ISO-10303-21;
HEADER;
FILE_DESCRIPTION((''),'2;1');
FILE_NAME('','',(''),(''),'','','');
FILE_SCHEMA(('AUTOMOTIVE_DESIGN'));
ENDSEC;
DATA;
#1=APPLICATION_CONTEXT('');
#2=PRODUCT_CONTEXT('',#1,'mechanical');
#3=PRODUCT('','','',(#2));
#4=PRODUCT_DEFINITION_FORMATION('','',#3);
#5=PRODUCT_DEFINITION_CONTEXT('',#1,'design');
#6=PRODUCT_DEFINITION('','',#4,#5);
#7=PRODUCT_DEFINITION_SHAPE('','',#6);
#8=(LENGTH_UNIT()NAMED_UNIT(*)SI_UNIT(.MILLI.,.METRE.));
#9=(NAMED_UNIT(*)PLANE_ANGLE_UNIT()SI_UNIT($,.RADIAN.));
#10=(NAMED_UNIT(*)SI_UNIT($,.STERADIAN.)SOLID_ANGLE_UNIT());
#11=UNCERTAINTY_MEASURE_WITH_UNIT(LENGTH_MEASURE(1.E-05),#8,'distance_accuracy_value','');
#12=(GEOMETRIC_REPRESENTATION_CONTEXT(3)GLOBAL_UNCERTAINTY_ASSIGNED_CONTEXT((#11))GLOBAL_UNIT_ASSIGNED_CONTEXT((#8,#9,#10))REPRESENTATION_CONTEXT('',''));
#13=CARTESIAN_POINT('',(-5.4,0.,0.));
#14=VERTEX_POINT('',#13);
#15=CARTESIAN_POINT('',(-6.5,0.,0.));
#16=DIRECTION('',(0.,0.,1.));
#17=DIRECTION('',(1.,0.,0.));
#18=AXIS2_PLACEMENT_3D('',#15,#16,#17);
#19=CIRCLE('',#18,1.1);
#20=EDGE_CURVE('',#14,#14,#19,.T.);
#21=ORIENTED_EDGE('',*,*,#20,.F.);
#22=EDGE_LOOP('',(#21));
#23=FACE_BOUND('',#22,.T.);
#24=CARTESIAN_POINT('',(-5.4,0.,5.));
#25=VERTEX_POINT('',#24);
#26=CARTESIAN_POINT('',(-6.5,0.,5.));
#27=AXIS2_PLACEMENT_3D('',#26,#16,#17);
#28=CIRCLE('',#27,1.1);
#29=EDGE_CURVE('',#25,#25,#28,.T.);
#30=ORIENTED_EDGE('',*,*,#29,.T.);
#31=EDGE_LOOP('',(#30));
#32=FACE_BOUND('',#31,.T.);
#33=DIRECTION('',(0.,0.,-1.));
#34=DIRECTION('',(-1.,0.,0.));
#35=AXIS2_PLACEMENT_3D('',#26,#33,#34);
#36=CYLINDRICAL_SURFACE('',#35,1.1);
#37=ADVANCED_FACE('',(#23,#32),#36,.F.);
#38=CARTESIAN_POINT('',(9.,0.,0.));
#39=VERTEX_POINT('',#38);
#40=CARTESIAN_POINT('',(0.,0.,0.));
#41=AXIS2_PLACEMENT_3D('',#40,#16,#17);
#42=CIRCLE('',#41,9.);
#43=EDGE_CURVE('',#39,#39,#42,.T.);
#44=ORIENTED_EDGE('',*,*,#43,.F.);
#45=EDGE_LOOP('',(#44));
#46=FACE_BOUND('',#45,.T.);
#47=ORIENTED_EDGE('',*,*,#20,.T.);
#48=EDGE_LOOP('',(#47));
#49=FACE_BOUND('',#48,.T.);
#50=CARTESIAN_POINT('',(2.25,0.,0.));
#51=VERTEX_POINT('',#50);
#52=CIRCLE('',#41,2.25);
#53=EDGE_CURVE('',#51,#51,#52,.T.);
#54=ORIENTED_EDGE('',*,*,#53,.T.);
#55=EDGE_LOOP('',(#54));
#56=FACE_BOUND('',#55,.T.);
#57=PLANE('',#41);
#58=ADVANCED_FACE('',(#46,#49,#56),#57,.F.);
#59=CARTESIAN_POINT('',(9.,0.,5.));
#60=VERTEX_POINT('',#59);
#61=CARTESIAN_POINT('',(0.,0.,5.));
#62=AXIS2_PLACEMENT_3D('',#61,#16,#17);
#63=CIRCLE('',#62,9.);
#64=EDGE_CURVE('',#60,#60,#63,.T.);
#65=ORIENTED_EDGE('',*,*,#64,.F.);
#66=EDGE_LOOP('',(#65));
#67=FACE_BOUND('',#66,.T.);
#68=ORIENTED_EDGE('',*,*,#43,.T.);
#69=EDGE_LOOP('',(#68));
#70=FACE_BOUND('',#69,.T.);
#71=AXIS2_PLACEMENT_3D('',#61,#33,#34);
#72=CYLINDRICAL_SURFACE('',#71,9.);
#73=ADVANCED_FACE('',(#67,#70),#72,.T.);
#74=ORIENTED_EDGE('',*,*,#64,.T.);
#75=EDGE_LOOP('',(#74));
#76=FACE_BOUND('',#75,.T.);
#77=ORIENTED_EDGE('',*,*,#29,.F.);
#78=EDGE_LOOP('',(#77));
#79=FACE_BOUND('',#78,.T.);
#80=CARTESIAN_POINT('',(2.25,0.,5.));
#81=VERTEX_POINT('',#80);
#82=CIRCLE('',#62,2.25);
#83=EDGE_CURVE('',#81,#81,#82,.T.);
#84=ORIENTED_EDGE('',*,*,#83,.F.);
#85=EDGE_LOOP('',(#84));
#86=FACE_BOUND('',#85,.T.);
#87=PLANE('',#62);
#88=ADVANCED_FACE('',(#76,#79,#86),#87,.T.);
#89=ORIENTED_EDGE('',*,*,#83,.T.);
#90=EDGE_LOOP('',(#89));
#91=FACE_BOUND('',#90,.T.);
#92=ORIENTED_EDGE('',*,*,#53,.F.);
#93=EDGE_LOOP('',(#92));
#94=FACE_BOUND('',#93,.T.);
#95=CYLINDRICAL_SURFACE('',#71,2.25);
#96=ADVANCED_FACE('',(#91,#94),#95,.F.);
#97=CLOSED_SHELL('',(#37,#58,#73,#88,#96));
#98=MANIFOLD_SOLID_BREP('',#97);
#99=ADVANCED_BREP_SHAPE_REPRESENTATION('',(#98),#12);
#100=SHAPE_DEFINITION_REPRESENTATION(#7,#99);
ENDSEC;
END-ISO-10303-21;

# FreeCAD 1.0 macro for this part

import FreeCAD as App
import Part
import Sketcher

doc = App.newDocument("Part")
body = doc.addObject("PartDesign::Body", "Body")

# Sketch on XY plane
sketch1 = body.newObject("Sketcher::SketchObject", "Sketch")
sketch1.AttachmentSupport = (doc.getObject("XY_Plane"), [""])
sketch1.MapMode = "FlatFace"
sketch1.addGeometry([
    Part.Circle(App.Vector(0, 0, 0), App.Vector(0, 0, 1), 9),
    Part.Circle(App.Vector(-6.5, 0, 0), App.Vector(0, 0, 1), 1.1),
    Part.Circle(App.Vector(0, 0, 0), App.Vector(0, 0, 1), 2.2),
], False)
sketch1.addConstraint([
    Sketcher.Constraint("Coincident", 0, 3, -1, 1),
    Sketcher.Constraint("Coincident", 2, 3, -1, 1),
    Sketcher.Constraint("PointOnObject", 1, 3, -1),
    Sketcher.Constraint("Diameter", 0, 18.0),
    Sketcher.Constraint("Diameter", 1, 2.2),
    Sketcher.Constraint("Diameter", 2, 4.5),
    Sketcher.Constraint("DistanceX", 1, 3, -1, 1, 6.5),
])
pad1 = body.newObject("PartDesign::Pad", "Pad")
pad1.Profile = sketch1
pad1.Length = 5

doc.recompute()
